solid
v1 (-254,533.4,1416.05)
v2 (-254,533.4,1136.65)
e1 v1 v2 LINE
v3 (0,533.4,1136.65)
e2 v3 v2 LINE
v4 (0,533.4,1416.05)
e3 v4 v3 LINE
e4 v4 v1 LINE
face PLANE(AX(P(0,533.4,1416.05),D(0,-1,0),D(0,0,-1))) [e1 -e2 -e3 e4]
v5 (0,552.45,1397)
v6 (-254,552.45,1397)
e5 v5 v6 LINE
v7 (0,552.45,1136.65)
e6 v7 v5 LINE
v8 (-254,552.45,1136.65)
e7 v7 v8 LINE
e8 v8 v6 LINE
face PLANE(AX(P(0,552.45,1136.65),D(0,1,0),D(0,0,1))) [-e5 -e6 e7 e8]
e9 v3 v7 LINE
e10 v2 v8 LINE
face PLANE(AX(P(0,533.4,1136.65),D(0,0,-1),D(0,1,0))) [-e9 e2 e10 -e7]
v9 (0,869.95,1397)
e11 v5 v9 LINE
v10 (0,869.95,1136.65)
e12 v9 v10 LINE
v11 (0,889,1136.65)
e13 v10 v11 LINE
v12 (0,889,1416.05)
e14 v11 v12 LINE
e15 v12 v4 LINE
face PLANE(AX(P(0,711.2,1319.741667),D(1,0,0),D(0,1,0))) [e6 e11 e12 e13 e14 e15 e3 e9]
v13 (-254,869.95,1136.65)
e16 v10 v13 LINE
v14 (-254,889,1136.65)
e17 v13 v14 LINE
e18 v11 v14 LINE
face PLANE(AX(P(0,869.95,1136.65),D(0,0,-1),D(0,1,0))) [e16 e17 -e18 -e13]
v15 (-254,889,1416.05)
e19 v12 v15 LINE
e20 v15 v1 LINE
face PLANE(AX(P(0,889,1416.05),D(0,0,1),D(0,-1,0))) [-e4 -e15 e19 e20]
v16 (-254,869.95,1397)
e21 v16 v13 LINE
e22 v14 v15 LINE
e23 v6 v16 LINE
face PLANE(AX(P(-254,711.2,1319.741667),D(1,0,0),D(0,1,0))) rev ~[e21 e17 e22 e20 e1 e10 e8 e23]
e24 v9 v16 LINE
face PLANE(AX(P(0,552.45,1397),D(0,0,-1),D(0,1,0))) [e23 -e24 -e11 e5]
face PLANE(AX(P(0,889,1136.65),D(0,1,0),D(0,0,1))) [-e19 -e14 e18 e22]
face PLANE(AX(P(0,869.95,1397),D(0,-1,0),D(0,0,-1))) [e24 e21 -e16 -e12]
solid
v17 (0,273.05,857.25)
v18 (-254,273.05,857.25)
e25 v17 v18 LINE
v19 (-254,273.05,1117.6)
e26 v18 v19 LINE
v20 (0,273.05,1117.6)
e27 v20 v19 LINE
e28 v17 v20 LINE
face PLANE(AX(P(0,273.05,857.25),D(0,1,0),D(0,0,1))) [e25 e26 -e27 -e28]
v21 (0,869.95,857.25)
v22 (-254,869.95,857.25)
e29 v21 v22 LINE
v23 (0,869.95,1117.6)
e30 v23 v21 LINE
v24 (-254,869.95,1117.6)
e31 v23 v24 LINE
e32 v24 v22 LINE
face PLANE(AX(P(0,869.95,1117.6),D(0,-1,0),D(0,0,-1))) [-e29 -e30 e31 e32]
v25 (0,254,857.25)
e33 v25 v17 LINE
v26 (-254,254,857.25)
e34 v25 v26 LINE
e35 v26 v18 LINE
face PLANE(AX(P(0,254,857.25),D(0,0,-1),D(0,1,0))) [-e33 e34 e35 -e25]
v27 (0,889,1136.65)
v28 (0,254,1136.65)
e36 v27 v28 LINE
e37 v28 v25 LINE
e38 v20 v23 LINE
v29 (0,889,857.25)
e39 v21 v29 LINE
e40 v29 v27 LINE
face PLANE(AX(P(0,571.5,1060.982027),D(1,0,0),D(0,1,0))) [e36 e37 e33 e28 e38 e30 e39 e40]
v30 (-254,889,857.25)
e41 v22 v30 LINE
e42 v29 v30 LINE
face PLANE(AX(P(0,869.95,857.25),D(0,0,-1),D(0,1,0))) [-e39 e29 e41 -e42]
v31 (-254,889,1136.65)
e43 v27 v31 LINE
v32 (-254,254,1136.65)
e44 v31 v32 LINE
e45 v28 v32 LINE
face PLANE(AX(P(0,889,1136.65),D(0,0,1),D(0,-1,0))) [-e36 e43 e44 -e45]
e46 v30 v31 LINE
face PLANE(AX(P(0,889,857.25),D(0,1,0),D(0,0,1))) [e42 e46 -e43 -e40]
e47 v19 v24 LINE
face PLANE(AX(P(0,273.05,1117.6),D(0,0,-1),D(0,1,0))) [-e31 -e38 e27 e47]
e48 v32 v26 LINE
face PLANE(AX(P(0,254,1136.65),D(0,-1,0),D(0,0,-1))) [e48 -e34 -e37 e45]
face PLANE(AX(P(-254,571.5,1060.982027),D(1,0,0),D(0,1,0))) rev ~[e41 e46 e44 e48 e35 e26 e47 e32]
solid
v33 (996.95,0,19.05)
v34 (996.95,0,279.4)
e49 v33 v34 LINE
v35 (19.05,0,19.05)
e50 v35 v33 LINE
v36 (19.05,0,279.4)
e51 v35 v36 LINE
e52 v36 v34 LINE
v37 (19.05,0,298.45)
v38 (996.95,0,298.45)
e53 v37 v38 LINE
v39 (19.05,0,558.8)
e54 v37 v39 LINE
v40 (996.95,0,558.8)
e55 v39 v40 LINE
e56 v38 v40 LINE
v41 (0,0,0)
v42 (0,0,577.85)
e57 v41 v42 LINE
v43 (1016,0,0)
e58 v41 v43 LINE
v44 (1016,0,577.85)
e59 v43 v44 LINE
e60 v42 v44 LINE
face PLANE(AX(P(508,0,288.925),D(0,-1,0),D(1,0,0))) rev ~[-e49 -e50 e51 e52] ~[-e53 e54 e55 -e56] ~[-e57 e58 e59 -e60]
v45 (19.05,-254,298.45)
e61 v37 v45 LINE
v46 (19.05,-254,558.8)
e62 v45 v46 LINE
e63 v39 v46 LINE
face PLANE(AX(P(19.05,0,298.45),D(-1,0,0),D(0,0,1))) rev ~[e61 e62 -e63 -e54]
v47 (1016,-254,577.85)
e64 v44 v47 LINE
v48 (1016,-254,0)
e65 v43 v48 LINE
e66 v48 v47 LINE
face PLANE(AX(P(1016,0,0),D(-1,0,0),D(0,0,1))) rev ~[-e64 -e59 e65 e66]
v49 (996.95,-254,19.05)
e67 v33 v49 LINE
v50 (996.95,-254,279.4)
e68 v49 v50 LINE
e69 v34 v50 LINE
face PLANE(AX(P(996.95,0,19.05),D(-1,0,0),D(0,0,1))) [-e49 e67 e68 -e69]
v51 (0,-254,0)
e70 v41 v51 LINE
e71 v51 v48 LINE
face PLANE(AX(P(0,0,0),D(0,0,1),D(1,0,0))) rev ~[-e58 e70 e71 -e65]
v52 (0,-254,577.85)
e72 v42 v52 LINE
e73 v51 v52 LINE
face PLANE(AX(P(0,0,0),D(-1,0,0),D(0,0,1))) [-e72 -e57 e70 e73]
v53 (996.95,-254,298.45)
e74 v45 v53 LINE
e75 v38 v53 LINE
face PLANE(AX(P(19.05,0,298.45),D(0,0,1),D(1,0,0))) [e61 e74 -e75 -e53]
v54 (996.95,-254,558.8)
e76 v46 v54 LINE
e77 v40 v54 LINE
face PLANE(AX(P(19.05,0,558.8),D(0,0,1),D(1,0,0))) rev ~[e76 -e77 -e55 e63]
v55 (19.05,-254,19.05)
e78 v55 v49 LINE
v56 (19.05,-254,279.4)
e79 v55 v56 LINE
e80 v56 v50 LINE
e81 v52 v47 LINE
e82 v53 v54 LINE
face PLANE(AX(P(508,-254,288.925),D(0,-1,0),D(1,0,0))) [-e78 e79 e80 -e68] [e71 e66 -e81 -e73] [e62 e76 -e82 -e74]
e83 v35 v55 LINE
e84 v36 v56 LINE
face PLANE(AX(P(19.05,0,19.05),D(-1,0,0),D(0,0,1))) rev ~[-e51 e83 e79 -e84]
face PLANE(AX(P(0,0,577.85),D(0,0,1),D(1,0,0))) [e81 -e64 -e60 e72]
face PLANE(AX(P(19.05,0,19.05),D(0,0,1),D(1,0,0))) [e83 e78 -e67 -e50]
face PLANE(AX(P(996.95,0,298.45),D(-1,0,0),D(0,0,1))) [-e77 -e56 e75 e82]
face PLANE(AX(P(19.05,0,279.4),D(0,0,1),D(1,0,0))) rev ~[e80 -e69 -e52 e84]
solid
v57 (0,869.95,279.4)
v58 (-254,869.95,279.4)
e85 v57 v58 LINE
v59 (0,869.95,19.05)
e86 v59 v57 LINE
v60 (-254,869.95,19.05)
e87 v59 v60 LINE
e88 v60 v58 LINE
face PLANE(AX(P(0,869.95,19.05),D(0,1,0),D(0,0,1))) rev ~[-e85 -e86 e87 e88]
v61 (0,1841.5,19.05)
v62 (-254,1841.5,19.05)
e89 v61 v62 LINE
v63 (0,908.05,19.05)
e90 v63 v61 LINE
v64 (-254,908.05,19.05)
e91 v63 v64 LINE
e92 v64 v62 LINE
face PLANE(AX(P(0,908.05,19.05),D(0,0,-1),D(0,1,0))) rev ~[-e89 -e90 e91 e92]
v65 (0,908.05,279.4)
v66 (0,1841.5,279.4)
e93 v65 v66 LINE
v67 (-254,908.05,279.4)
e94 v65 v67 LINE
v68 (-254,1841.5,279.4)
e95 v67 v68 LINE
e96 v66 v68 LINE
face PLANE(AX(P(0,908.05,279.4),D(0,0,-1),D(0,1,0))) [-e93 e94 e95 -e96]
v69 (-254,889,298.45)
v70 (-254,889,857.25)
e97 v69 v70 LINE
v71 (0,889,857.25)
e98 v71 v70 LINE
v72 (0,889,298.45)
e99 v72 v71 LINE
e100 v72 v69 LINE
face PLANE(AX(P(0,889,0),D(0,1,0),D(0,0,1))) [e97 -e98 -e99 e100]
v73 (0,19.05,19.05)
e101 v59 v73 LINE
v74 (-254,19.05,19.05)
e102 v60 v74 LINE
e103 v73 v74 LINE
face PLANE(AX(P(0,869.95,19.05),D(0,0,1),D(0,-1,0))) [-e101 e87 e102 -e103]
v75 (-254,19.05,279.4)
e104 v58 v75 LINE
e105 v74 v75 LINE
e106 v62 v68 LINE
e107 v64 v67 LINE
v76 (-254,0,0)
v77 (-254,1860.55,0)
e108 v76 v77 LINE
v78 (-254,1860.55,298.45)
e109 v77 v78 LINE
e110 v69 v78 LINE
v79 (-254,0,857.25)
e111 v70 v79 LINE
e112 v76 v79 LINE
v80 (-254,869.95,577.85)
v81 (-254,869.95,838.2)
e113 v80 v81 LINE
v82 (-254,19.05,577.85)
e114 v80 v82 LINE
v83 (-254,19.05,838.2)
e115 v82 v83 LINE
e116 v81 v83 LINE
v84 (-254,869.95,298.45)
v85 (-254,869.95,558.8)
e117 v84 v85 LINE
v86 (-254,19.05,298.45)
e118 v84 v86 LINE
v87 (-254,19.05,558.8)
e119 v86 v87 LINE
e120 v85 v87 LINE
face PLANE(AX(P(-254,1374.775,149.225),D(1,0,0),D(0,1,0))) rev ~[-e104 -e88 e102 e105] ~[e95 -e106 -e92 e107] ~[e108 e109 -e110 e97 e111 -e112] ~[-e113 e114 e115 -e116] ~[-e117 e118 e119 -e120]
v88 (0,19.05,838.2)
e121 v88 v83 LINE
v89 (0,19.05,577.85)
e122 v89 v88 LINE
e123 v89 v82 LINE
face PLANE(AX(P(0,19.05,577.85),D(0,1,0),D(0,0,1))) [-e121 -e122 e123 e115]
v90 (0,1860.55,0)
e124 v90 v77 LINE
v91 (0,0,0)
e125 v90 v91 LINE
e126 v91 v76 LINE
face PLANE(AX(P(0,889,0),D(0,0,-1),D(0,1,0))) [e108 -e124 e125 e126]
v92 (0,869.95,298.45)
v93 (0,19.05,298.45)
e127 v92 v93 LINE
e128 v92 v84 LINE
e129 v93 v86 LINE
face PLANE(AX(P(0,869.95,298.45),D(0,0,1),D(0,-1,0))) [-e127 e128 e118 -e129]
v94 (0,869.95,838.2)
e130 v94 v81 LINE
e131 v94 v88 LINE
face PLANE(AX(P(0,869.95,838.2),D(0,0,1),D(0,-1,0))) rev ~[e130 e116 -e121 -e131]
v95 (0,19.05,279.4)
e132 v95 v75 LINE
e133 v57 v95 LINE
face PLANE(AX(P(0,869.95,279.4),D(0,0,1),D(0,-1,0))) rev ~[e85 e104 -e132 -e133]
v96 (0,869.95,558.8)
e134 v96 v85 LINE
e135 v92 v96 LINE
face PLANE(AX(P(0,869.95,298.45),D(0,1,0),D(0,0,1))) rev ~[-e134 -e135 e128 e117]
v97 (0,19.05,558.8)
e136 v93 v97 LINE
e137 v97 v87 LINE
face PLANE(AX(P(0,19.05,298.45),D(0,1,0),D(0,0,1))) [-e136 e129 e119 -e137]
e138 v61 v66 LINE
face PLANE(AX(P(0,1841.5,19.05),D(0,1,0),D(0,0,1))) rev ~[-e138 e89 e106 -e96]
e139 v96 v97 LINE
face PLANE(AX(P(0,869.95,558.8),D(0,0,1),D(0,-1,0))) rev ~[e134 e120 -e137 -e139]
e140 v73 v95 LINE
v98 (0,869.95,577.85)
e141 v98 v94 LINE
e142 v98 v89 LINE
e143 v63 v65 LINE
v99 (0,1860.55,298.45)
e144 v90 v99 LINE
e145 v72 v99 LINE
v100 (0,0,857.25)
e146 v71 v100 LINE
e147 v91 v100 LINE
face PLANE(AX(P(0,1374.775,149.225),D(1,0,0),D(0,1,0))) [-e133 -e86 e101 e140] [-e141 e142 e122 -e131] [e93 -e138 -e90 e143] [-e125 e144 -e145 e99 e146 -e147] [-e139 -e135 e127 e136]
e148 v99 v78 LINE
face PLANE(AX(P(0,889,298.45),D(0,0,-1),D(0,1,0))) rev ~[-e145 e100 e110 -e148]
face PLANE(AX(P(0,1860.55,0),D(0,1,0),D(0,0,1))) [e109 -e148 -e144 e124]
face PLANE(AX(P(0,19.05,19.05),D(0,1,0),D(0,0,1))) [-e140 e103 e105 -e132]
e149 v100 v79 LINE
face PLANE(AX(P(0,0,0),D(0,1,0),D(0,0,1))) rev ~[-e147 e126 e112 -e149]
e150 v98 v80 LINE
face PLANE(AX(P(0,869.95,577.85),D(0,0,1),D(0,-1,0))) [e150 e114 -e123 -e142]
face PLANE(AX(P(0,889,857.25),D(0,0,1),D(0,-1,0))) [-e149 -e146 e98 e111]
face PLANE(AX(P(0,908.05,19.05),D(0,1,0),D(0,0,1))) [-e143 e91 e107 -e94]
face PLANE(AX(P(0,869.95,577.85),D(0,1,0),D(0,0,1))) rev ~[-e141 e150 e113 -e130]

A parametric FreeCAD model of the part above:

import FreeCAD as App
import Part
import Sketcher
Q = App.Units.Quantity


def add_polygon(sketch, points):
    """Adds a closed chain of lines whose ends are joined by coincident constraints."""
    first, n = sketch.GeometryCount, len(points)
    for a, b in zip(points, points[1:] + points[:1]):
        sketch.addGeometry(Part.LineSegment(App.Vector(*a, 0), App.Vector(*b, 0)), False)
    for i in range(n):
        sketch.addConstraint(Sketcher.Constraint("Coincident", first + i, 2, first + (i + 1) % n, 1))

doc = App.newDocument("Part")
body = doc.addObject("PartDesign::Body", "Body")

sketch1 = doc.addObject("Sketcher::SketchObject", "Sketch")
body.addObject(sketch1)
sketch1.AttachmentSupport = (doc.XZ_Plane, [""])
sketch1.MapMode = "FlatFace"
add_polygon(sketch1, [(0, 578), (0, 0), (1016, 0), (1016, 578)])
add_polygon(sketch1, [(997, 19), (19, 19), (19, 279), (997, 279)])
add_polygon(sketch1, [(997, 298), (19, 298), (19, 559), (997, 559)])
sketch1.addConstraint(Sketcher.Constraint("Vertical", 0))
sketch1.addConstraint(Sketcher.Constraint("Horizontal", 1))
sketch1.addConstraint(Sketcher.Constraint("Vertical", 2))
sketch1.addConstraint(Sketcher.Constraint("Horizontal", 3))
sketch1.addConstraint(Sketcher.Constraint("Horizontal", 4))
sketch1.addConstraint(Sketcher.Constraint("Vertical", 5))
sketch1.addConstraint(Sketcher.Constraint("Horizontal", 6))
sketch1.addConstraint(Sketcher.Constraint("Vertical", 7))
sketch1.addConstraint(Sketcher.Constraint("Horizontal", 8))
sketch1.addConstraint(Sketcher.Constraint("Vertical", 9))
sketch1.addConstraint(Sketcher.Constraint("Horizontal", 10))
sketch1.addConstraint(Sketcher.Constraint("Vertical", 11))
sketch1.addConstraint(Sketcher.Constraint("Coincident", 0, 2, -1, 1))
sketch1.addConstraint(Sketcher.Constraint("Vertical", 5, 2, 8, 2))
sketch1.addConstraint(Sketcher.Constraint("Vertical", 7, 2, 10, 2))
sketch1.addConstraint(Sketcher.Constraint("Equal", 7, 9))
sketch1.addConstraint(Sketcher.Constraint("DistanceX", 1, 1, 1, 2, Q("40 in")))
sketch1.addConstraint(Sketcher.Constraint("DistanceX", 4, 2, 4, 1, Q("38.5 in")))
sketch1.addConstraint(Sketcher.Constraint("DistanceY", -1, 1, 5, 2, Q("11 in")))
sketch1.addConstraint(Sketcher.Constraint("DistanceY", -1, 1, 9, 2, Q("22 in")))
sketch1.addConstraint(Sketcher.Constraint("DistanceY", 4, 2, 3, 2, Q("22 in")))
sketch1.addConstraint(Sketcher.Constraint("DistanceY", 0, 2, 0, 1, Q("22.75 in")))
sketch1.addConstraint(Sketcher.Constraint("DistanceX", -1, 1, 4, 2, Q("0.75 in")))
pad1 = doc.addObject("PartDesign::Pad", "Pad")
body.addObject(pad1)
pad1.Profile = sketch1
pad1.Length = Q("10 in")
body2 = doc.addObject("PartDesign::Body", "Body001")

sketch2 = doc.addObject("Sketcher::SketchObject", "Sketch001")
body2.addObject(sketch2)
sketch2.AttachmentSupport = (doc.getObject("YZ_Plane001"), [""])
sketch2.MapMode = "FlatFace"
add_polygon(sketch2, [(889, 857), (889, 0), (0, 0), (0, 857)])
add_polygon(sketch2, [(19, 19), (870, 19), (870, 279), (19, 279)])
add_polygon(sketch2, [(19, 298), (870, 298), (870, 559), (19, 559)])
add_polygon(sketch2, [(19, 578), (870, 578), (870, 838), (19, 838)])
sketch2.addConstraint(Sketcher.Constraint("Vertical", 0))
sketch2.addConstraint(Sketcher.Constraint("Horizontal", 1))
sketch2.addConstraint(Sketcher.Constraint("Vertical", 2))
sketch2.addConstraint(Sketcher.Constraint("Horizontal", 3))
sketch2.addConstraint(Sketcher.Constraint("Horizontal", 4))
sketch2.addConstraint(Sketcher.Constraint("Vertical", 5))
sketch2.addConstraint(Sketcher.Constraint("Horizontal", 6))
sketch2.addConstraint(Sketcher.Constraint("Vertical", 7))
sketch2.addConstraint(Sketcher.Constraint("Horizontal", 8))
sketch2.addConstraint(Sketcher.Constraint("Vertical", 9))
sketch2.addConstraint(Sketcher.Constraint("Horizontal", 10))
sketch2.addConstraint(Sketcher.Constraint("Vertical", 11))
sketch2.addConstraint(Sketcher.Constraint("Horizontal", 12))
sketch2.addConstraint(Sketcher.Constraint("Vertical", 13))
sketch2.addConstraint(Sketcher.Constraint("Horizontal", 14))
sketch2.addConstraint(Sketcher.Constraint("Vertical", 15))
sketch2.addConstraint(Sketcher.Constraint("Coincident", 1, 2, -1, 1))
sketch2.addConstraint(Sketcher.Constraint("Vertical", 5, 2, 8, 2))
sketch2.addConstraint(Sketcher.Constraint("Vertical", 7, 2, 10, 2))
sketch2.addConstraint(Sketcher.Constraint("Vertical", 9, 2, 12, 2))
sketch2.addConstraint(Sketcher.Constraint("Vertical", 11, 2, 14, 2))
sketch2.addConstraint(Sketcher.Constraint("Equal", 7, 9))
sketch2.addConstraint(Sketcher.Constraint("Equal", 11, 13))
sketch2.addConstraint(Sketcher.Constraint("DistanceX", 1, 2, 1, 1, Q("35 in")))
sketch2.addConstraint(Sketcher.Constraint("DistanceX", 4, 1, 4, 2, Q("33.5 in")))
sketch2.addConstraint(Sketcher.Constraint("DistanceY", -1, 1, 5, 2, Q("11 in")))
sketch2.addConstraint(Sketcher.Constraint("DistanceY", -1, 1, 9, 2, Q("22 in")))
sketch2.addConstraint(Sketcher.Constraint("DistanceY", -1, 1, 13, 2, Q("33 in")))
sketch2.addConstraint(Sketcher.Constraint("DistanceY", 4, 2, 3, 2, Q("33 in")))
sketch2.addConstraint(Sketcher.Constraint("DistanceY", 0, 2, 0, 1, Q("33.75 in")))
sketch2.addConstraint(Sketcher.Constraint("DistanceX", -1, 1, 4, 2, Q("34.25 in")))
pad2 = doc.addObject("PartDesign::Pad", "Pad001")
body2.addObject(pad2)
pad2.Profile = sketch2
pad2.Length = Q("10 in")
pad2.Reversed = True

sketch3 = doc.addObject("Sketcher::SketchObject", "Sketch002")
body2.addObject(sketch3)
sketch3.AttachmentSupport = (doc.getObject("YZ_Plane001"), [""])
sketch3.MapMode = "FlatFace"
add_polygon(sketch3, [(889, 298), (889, 0), (1861, 0), (1861, 298)])
add_polygon(sketch3, [(1842, 19), (908, 19), (908, 279), (1842, 279)])
sketch3.addConstraint(Sketcher.Constraint("Vertical", 0))
sketch3.addConstraint(Sketcher.Constraint("Horizontal", 1))
sketch3.addConstraint(Sketcher.Constraint("Vertical", 2))
sketch3.addConstraint(Sketcher.Constraint("Horizontal", 3))
sketch3.addConstraint(Sketcher.Constraint("Horizontal", 4))
sketch3.addConstraint(Sketcher.Constraint("Vertical", 5))
sketch3.addConstraint(Sketcher.Constraint("Horizontal", 6))
sketch3.addConstraint(Sketcher.Constraint("Vertical", 7))
sketch3.addConstraint(Sketcher.Constraint("PointOnObject", 0, 2, -1))
sketch3.addConstraint(Sketcher.Constraint("DistanceX", -1, 1, 0, 2, Q("35 in")))
sketch3.addConstraint(Sketcher.Constraint("DistanceY", -1, 1, 5, 2, Q("11 in")))
sketch3.addConstraint(Sketcher.Constraint("DistanceY", 4, 2, 3, 2, Q("11 in")))
sketch3.addConstraint(Sketcher.Constraint("DistanceX", 1, 1, 1, 2, Q("38.25 in")))
sketch3.addConstraint(Sketcher.Constraint("DistanceX", 4, 2, 4, 1, Q("36.75 in")))
sketch3.addConstraint(Sketcher.Constraint("DistanceY", 0, 2, 0, 1, Q("11.75 in")))
sketch3.addConstraint(Sketcher.Constraint("DistanceX", -1, 1, 6, 2, Q("72.5 in")))
pad3 = doc.addObject("PartDesign::Pad", "Pad002")
body2.addObject(pad3)
pad3.Profile = sketch3
pad3.Length = Q("10 in")
pad3.Reversed = True
body3 = doc.addObject("PartDesign::Body", "Body002")

sketch4 = doc.addObject("Sketcher::SketchObject", "Sketch003")
body3.addObject(sketch4)
sketch4.AttachmentSupport = (doc.getObject("YZ_Plane002"), [""])
sketch4.MapMode = "FlatFace"
add_polygon(sketch4, [(889, 857), (889, 1137), (254, 1137), (254, 857), (273, 857), (273, 1118), (870, 1118), (870, 857)])
sketch4.addConstraint(Sketcher.Constraint("Vertical", 0))
sketch4.addConstraint(Sketcher.Constraint("Horizontal", 1))
sketch4.addConstraint(Sketcher.Constraint("Vertical", 2))
sketch4.addConstraint(Sketcher.Constraint("Horizontal", 3))
sketch4.addConstraint(Sketcher.Constraint("Vertical", 4))
sketch4.addConstraint(Sketcher.Constraint("Horizontal", 5))
sketch4.addConstraint(Sketcher.Constraint("Vertical", 6))
sketch4.addConstraint(Sketcher.Constraint("Horizontal", 7))
sketch4.addConstraint(Sketcher.Constraint("Horizontal", 3, 2, 6, 2))
sketch4.addConstraint(Sketcher.Constraint("Equal", 3, 7))
sketch4.addConstraint(Sketcher.Constraint("DistanceX", 1, 2, 1, 1, Q("25 in")))
sketch4.addConstraint(Sketcher.Constraint("DistanceY", 0, 1, 0, 2, Q("11 in")))
sketch4.addConstraint(Sketcher.Constraint("DistanceX", 5, 1, 5, 2, Q("23.5 in")))
sketch4.addConstraint(Sketcher.Constraint("DistanceX", -1, 1, 0, 2, Q("35 in")))
sketch4.addConstraint(Sketcher.Constraint("DistanceY", -1, 1, 4, 2, Q("44 in")))
sketch4.addConstraint(Sketcher.Constraint("DistanceY", 4, 1, 4, 2, Q("10.25 in")))
pad4 = doc.addObject("PartDesign::Pad", "Pad003")
body3.addObject(pad4)
pad4.Profile = sketch4
pad4.Length = Q("10 in")
pad4.Reversed = True
body4 = doc.addObject("PartDesign::Body", "Body003")

sketch5 = doc.addObject("Sketcher::SketchObject", "Sketch004")
body4.addObject(sketch5)
sketch5.AttachmentSupport = (doc.getObject("YZ_Plane003"), [""])
sketch5.MapMode = "FlatFace"
add_polygon(sketch5, [(533, 1416), (533, 1137), (552, 1137), (552, 1397), (870, 1397), (870, 1137), (889, 1137), (889, 1416)])
sketch5.addConstraint(Sketcher.Constraint("Vertical", 0))
sketch5.addConstraint(Sketcher.Constraint("Horizontal", 1))
sketch5.addConstraint(Sketcher.Constraint("Vertical", 2))
sketch5.addConstraint(Sketcher.Constraint("Horizontal", 3))
sketch5.addConstraint(Sketcher.Constraint("Vertical", 4))
sketch5.addConstraint(Sketcher.Constraint("Horizontal", 5))
sketch5.addConstraint(Sketcher.Constraint("Vertical", 6))
sketch5.addConstraint(Sketcher.Constraint("Horizontal", 7))
sketch5.addConstraint(Sketcher.Constraint("Horizontal", 1, 2, 4, 2))
sketch5.addConstraint(Sketcher.Constraint("Equal", 1, 5))
sketch5.addConstraint(Sketcher.Constraint("DistanceX", 7, 2, 7, 1, Q("14 in")))
sketch5.addConstraint(Sketcher.Constraint("DistanceY", 0, 2, 0, 1, Q("11 in")))
sketch5.addConstraint(Sketcher.Constraint("DistanceX", 3, 1, 3, 2, Q("12.5 in")))
sketch5.addConstraint(Sketcher.Constraint("DistanceX", -1, 1, 0, 2, Q("21 in")))
sketch5.addConstraint(Sketcher.Constraint("DistanceY", -1, 1, 2, 2, Q("55 in")))
sketch5.addConstraint(Sketcher.Constraint("DistanceY", 2, 1, 2, 2, Q("10.25 in")))
pad5 = doc.addObject("PartDesign::Pad", "Pad004")
body4.addObject(pad5)
pad5.Profile = sketch5
pad5.Length = Q("10 in")
pad5.Reversed = True

doc.recompute()
